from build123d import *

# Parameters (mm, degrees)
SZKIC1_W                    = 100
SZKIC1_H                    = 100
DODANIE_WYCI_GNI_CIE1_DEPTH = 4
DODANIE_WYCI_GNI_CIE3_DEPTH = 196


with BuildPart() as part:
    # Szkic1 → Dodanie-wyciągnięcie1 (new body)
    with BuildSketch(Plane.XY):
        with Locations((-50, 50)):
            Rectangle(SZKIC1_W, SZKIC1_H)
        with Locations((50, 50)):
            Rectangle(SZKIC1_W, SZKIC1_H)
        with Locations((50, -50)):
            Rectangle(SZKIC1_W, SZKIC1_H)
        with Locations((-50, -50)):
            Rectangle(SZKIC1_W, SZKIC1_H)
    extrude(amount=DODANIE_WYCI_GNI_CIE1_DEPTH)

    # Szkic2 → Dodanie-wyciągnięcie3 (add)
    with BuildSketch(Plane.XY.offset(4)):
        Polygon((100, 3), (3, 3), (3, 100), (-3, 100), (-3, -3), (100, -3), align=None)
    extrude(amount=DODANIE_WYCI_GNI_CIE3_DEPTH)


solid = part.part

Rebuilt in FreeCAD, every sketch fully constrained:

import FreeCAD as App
import Part
import Sketcher

V = App.Vector

doc = App.newDocument("Part")
body = doc.addObject("PartDesign::Body", "Body")

# Sketch on XY plane
sketch1 = doc.addObject("Sketcher::SketchObject", "Sketch")
body.addObject(sketch1)
sketch1.AttachmentSupport = (doc.XY_Plane, [""])
sketch1.MapMode = "FlatFace"
sketch1.addGeometry([
    Part.LineSegment(V(-100, 100, 0), V(-100, -100, 0)),
    Part.LineSegment(V(-100, -100, 0), V(100, -100, 0)),
    Part.LineSegment(V(100, -100, 0), V(100, 100, 0)),
    Part.LineSegment(V(100, 100, 0), V(-100, 100, 0)),
], False)
sketch1.addConstraint([
    Sketcher.Constraint("Coincident", 0, 2, 1, 1),
    Sketcher.Constraint("Coincident", 1, 2, 2, 1),
    Sketcher.Constraint("Coincident", 2, 2, 3, 1),
    Sketcher.Constraint("Coincident", 3, 2, 0, 1),
    Sketcher.Constraint("Vertical", 0),
    Sketcher.Constraint("Horizontal", 1),
    Sketcher.Constraint("Vertical", 2),
    Sketcher.Constraint("Horizontal", 3),
    Sketcher.Constraint("Symmetric", 0, 2, 2, 2, -1, 1),
    Sketcher.Constraint("Equal", 3, 0),
    Sketcher.Constraint("DistanceX", 1, 1, 1, 2, 200.0),
])
pad1 = doc.addObject("PartDesign::Pad", "Pad")
body.addObject(pad1)
pad1.Profile = sketch1
pad1.Length = 4

# Sketch on XY plane
sketch2 = doc.addObject("Sketcher::SketchObject", "Sketch001")
body.addObject(sketch2)
sketch2.AttachmentSupport = (doc.XY_Plane, [""])
sketch2.MapMode = "FlatFace"
sketch2.AttachmentOffset = App.Placement(V(0, 0, 4), App.Rotation())
sketch2.addGeometry([
    Part.LineSegment(V(100, 3, 0), V(3, 3, 0)),  # 0
    Part.LineSegment(V(3, 3, 0), V(3, 100, 0)),  # 1
    Part.LineSegment(V(3, 100, 0), V(-3, 100, 0)),  # 2
    Part.LineSegment(V(-3, 100, 0), V(-3, -3, 0)),  # 3
    Part.LineSegment(V(-3, -3, 0), V(100, -3, 0)),  # 4
    Part.LineSegment(V(100, -3, 0), V(100, 3, 0)),  # 5
], False)
sketch2.addConstraint([
    Sketcher.Constraint("Coincident", 0, 2, 1, 1),
    Sketcher.Constraint("Coincident", 1, 2, 2, 1),
    Sketcher.Constraint("Coincident", 2, 2, 3, 1),
    Sketcher.Constraint("Coincident", 3, 2, 4, 1),
    Sketcher.Constraint("Coincident", 4, 2, 5, 1),
    Sketcher.Constraint("Coincident", 5, 2, 0, 1),
    Sketcher.Constraint("Horizontal", 0),
    Sketcher.Constraint("Vertical", 1),
    Sketcher.Constraint("Horizontal", 2),
    Sketcher.Constraint("Vertical", 3),
    Sketcher.Constraint("Horizontal", 4),
    Sketcher.Constraint("Vertical", 5),
    Sketcher.Constraint("Symmetric", 0, 2, 3, 2, -1, 1),
    Sketcher.Constraint("Equal", 0, 1),
    Sketcher.Constraint("Equal", 4, 3),
    Sketcher.Constraint("DistanceX", 0, 2, 0, 1, 97.0),
    Sketcher.Constraint("DistanceX", 2, 2, 2, 1, 6.0),
])
pad2 = doc.addObject("PartDesign::Pad", "Pad001")
body.addObject(pad2)
pad2.Profile = sketch2
pad2.Length = 196

doc.recompute()
